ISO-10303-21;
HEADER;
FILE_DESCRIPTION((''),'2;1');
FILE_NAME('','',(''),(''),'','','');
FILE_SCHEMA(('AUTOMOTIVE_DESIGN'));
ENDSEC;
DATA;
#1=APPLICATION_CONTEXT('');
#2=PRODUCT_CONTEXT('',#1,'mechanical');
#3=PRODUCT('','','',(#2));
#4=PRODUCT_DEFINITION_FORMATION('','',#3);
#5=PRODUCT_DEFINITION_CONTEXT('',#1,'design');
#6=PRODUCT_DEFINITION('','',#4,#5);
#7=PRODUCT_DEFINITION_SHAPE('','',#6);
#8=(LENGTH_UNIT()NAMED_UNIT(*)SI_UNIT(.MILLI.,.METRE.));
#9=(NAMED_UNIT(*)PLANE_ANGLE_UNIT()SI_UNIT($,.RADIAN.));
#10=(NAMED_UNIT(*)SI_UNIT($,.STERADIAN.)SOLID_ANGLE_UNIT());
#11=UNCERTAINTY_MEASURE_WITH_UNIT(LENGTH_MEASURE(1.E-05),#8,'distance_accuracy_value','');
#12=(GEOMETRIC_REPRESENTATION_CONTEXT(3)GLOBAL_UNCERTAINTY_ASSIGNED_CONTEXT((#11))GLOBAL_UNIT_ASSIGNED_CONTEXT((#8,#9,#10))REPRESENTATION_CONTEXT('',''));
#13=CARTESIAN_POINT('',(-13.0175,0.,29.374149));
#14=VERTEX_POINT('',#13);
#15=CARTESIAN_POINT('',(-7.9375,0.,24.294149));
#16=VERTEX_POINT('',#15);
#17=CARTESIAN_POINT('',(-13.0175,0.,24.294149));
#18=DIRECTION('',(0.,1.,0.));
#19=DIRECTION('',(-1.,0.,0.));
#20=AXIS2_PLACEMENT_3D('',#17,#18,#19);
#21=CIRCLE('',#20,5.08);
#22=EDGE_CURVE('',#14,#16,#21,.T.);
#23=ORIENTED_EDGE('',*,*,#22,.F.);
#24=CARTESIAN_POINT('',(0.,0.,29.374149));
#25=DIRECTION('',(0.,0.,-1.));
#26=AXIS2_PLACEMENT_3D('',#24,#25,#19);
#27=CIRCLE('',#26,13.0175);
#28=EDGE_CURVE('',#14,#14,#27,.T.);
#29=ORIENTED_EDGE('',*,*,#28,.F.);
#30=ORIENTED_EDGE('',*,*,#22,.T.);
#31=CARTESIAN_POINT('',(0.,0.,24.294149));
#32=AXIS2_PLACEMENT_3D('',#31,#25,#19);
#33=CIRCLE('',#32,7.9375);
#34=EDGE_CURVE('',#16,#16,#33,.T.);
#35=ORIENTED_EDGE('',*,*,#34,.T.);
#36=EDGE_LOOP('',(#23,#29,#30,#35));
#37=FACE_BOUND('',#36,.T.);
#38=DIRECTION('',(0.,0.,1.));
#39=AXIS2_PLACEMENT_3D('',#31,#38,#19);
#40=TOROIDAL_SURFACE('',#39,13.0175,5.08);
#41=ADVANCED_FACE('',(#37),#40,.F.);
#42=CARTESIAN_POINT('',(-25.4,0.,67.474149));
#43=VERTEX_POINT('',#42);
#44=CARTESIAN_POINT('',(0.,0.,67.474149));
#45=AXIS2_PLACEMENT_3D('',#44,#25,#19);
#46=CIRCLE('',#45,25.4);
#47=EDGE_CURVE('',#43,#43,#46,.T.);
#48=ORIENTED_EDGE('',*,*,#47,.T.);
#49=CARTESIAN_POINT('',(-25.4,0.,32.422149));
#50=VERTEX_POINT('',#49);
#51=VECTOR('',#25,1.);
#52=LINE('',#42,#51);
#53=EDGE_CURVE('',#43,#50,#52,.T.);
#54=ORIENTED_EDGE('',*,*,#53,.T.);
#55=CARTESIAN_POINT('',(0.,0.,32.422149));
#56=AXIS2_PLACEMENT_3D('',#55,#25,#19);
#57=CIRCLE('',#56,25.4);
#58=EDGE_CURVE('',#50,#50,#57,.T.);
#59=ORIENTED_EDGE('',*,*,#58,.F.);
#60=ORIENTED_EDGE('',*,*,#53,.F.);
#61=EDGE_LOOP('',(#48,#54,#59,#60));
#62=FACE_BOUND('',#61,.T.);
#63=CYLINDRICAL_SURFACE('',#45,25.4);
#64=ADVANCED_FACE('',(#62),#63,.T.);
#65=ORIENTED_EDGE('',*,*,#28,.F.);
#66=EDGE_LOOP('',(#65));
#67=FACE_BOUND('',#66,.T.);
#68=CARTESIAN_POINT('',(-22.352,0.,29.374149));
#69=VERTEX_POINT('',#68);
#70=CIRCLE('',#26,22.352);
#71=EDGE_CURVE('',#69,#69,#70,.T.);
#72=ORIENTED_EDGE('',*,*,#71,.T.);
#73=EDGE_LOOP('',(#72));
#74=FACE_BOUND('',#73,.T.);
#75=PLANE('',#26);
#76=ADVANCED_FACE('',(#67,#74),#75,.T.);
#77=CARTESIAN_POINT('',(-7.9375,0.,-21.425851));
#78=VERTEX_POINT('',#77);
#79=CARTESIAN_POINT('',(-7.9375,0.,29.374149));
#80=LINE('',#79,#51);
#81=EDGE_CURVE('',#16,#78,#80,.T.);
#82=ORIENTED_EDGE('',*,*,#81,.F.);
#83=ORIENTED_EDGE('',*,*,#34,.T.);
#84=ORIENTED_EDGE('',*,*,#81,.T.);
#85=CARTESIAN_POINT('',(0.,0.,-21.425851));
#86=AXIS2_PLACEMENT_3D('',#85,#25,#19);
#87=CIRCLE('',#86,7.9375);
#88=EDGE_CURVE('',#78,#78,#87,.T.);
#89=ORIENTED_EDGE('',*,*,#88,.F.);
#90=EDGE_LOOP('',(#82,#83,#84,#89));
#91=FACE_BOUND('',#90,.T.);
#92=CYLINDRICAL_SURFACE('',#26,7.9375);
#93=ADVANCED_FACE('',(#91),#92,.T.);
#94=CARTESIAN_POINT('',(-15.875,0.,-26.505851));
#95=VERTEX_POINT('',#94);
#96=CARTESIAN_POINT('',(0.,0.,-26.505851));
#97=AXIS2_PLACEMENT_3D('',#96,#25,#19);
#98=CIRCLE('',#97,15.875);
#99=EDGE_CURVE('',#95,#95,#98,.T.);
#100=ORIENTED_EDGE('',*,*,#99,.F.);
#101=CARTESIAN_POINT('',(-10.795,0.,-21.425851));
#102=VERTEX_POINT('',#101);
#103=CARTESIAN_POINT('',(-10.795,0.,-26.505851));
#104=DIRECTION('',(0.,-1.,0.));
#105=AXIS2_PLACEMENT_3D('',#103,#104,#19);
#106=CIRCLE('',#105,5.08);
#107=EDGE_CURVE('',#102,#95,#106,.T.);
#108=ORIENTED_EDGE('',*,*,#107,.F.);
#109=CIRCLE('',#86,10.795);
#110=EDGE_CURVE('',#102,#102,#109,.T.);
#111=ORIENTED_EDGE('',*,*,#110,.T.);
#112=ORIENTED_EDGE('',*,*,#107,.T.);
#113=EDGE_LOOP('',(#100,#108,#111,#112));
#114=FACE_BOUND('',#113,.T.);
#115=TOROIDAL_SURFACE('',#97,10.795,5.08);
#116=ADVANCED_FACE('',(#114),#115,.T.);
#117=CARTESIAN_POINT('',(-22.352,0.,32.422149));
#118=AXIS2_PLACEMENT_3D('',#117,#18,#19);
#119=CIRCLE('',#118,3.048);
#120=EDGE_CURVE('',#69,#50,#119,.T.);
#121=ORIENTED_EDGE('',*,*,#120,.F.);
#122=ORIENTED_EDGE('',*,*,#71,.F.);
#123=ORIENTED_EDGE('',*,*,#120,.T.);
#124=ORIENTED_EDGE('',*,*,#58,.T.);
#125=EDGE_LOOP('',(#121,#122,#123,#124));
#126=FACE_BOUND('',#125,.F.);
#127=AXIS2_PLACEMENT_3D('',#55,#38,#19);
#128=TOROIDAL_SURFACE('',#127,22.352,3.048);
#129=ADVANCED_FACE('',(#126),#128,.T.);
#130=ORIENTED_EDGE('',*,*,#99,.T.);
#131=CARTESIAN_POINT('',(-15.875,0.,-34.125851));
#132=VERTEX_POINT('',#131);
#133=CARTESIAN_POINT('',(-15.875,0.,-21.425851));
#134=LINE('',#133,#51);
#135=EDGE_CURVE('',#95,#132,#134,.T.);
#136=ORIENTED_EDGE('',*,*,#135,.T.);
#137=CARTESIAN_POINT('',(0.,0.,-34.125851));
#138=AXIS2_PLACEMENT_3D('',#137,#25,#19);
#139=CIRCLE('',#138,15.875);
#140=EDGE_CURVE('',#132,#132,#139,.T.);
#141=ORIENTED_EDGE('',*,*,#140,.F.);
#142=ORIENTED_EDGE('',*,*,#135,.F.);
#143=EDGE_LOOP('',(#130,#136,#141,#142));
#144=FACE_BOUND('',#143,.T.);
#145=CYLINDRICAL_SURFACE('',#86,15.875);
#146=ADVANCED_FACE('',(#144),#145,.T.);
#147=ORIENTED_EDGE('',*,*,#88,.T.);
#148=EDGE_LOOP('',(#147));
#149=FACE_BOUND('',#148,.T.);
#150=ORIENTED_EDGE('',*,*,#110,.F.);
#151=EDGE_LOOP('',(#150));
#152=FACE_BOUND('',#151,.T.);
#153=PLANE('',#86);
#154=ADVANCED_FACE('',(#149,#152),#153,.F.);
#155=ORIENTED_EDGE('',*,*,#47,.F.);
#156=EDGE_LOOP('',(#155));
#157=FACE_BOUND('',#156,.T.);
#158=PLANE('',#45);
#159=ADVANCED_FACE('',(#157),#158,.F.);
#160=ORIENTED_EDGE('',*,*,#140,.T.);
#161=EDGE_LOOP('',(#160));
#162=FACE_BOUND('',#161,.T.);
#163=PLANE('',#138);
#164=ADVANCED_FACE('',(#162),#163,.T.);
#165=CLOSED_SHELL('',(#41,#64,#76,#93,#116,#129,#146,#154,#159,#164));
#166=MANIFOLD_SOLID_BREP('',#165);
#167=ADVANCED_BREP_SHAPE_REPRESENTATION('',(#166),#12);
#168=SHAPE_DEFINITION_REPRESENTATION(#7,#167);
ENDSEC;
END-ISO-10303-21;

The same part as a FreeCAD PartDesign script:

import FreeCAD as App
import Part
import Sketcher
Q = App.Units.Quantity


def edges_at(feature, points):
    """Names of the edges that pass closest to the given points."""
    edges = feature.Shape.Edges
    near = lambda p: min(range(len(edges)), key=lambda i: edges[i].distToShape(Part.Vertex(*p))[0])
    return sorted({f"Edge{near(p) + 1}" for p in points})


def add_polygon(sketch, points):
    """Adds a closed chain of lines whose ends are joined by coincident constraints."""
    first, n = sketch.GeometryCount, len(points)
    for a, b in zip(points, points[1:] + points[:1]):
        sketch.addGeometry(Part.LineSegment(App.Vector(*a, 0), App.Vector(*b, 0)), False)
    for i in range(n):
        sketch.addConstraint(Sketcher.Constraint("Coincident", first + i, 2, first + (i + 1) % n, 1))

doc = App.newDocument("Part")
body = doc.addObject("PartDesign::Body", "Body")

sketch1 = body.newObject("Sketcher::SketchObject", "Sketch")
sketch1.AttachmentSupport = (doc.getObject("XZ_Plane"), [""])
sketch1.MapMode = "FlatFace"
add_polygon(sketch1, [(0, -34.125851), (0, 67.474149), (-25.4, 67.474149), (-25.4, 29.374149), (-7.9375, 29.374149), (-7.9375, -21.425851), (-15.875, -21.425851), (-15.875, -34.125851)])
sketch1.addConstraint(Sketcher.Constraint("Vertical", 0))
sketch1.addConstraint(Sketcher.Constraint("Horizontal", 1))
sketch1.addConstraint(Sketcher.Constraint("Vertical", 2))
sketch1.addConstraint(Sketcher.Constraint("Horizontal", 3))
sketch1.addConstraint(Sketcher.Constraint("Vertical", 4))
sketch1.addConstraint(Sketcher.Constraint("Horizontal", 5))
sketch1.addConstraint(Sketcher.Constraint("Vertical", 6))
sketch1.addConstraint(Sketcher.Constraint("Horizontal", 7))
sketch1.addConstraint(Sketcher.Constraint("PointOnObject", 0, 2, -2))
sketch1.addConstraint(Sketcher.Constraint("DistanceX", 1, 2, 1, 1, Q("1 in")))
sketch1.addConstraint(Sketcher.Constraint("DistanceY", 0, 1, 0, 2, Q("4 in")))
sketch1.addConstraint(Sketcher.Constraint("DistanceY", 4, 2, 4, 1, Q("2 in")))
sketch1.addConstraint(Sketcher.Constraint("DistanceY", 2, 2, 2, 1, Q("1.5 in")))
sketch1.addConstraint(Sketcher.Constraint("DistanceX", 3, 1, 3, 2, Q("0.6875 in")))
sketch1.addConstraint(Sketcher.Constraint("DistanceX", 5, 2, 5, 1, Q("0.3125 in")))
sketch1.addConstraint(Sketcher.Constraint("DistanceY", -1, 1, 0, 2, 67.474149))
revolution = body.newObject("PartDesign::Revolution", "Revolution")
revolution.Profile = sketch1
revolution.ReferenceAxis = (sketch1, ["V_Axis"])
revolution.Angle = 360
doc.recompute()

fillet = body.newObject("PartDesign::Fillet", "Fillet")
fillet.Base = (revolution, edges_at(revolution, [(7.938, 0, 29.374), (15.875, 0, -21.426)]))
fillet.Radius = Q("0.2 in")
doc.recompute()

fillet2 = body.newObject("PartDesign::Fillet", "Fillet001")
fillet2.Base = (fillet, edges_at(fillet, [(25.4, 0, 29.374)]))
fillet2.Radius = Q("0.12 in")

doc.recompute()
